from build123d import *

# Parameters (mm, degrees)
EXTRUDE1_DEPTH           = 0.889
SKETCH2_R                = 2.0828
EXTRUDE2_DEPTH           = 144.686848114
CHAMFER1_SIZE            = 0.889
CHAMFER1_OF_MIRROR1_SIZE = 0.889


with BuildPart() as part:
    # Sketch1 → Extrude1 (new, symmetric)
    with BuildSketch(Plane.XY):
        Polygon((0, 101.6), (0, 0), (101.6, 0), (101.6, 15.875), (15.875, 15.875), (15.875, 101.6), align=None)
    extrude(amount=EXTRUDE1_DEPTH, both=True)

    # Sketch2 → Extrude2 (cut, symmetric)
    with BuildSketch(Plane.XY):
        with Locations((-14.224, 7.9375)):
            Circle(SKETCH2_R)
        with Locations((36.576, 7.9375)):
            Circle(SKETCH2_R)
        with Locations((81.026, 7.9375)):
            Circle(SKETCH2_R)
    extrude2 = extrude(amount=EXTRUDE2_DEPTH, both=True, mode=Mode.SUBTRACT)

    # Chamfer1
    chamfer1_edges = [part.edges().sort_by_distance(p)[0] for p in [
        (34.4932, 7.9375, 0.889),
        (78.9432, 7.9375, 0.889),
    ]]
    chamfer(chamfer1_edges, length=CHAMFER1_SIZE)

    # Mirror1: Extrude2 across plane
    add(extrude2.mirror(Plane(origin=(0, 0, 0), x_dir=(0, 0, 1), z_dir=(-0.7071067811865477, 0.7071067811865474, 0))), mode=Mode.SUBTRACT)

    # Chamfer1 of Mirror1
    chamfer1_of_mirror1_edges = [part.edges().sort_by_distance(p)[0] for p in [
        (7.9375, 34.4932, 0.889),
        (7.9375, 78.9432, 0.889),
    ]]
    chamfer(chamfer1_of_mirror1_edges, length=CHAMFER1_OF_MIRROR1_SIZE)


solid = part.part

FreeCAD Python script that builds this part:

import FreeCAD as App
import Part
import Sketcher

V = App.Vector
Q = App.Units.Quantity


def edges_at(feature, points):
    """Names of the edges that pass closest to the given points."""
    edges = feature.Shape.Edges
    near = lambda p: min(range(len(edges)), key=lambda i: edges[i].distToShape(Part.Vertex(*p))[0])
    return sorted({f"Edge{near(p) + 1}" for p in points})

doc = App.newDocument("Part")
body = doc.addObject("PartDesign::Body", "Body")

# Sketch on XY plane
sketch1 = body.newObject("Sketcher::SketchObject", "Sketch")
sketch1.AttachmentSupport = (doc.getObject("XY_Plane"), [""])
sketch1.MapMode = "FlatFace"
sketch1.addGeometry(Part.LineSegment(V(0, 102, 0), V(0, 0, 0)), False)
sketch1.addGeometry(Part.LineSegment(V(0, 0, 0), V(102, 0, 0)), False)
sketch1.addGeometry(Part.LineSegment(V(102, 0, 0), V(102, 16, 0)), False)
sketch1.addGeometry(Part.LineSegment(V(102, 16, 0), V(16, 16, 0)), False)
sketch1.addGeometry(Part.LineSegment(V(16, 16, 0), V(16, 102, 0)), False)
sketch1.addGeometry(Part.LineSegment(V(16, 102, 0), V(0, 102, 0)), False)
sketch1.addConstraint(Sketcher.Constraint("Coincident", 0, 2, 1, 1))
sketch1.addConstraint(Sketcher.Constraint("Coincident", 1, 2, 2, 1))
sketch1.addConstraint(Sketcher.Constraint("Coincident", 2, 2, 3, 1))
sketch1.addConstraint(Sketcher.Constraint("Coincident", 3, 2, 4, 1))
sketch1.addConstraint(Sketcher.Constraint("Coincident", 4, 2, 5, 1))
sketch1.addConstraint(Sketcher.Constraint("Coincident", 5, 2, 0, 1))
sketch1.addConstraint(Sketcher.Constraint("Vertical", 0))
sketch1.addConstraint(Sketcher.Constraint("Horizontal", 1))
sketch1.addConstraint(Sketcher.Constraint("Vertical", 2))
sketch1.addConstraint(Sketcher.Constraint("Horizontal", 3))
sketch1.addConstraint(Sketcher.Constraint("Vertical", 4))
sketch1.addConstraint(Sketcher.Constraint("Horizontal", 5))
sketch1.addConstraint(Sketcher.Constraint("Coincident", 0, 2, -1, 1))
sketch1.addConstraint(Sketcher.Constraint("Equal", 1, 0))
sketch1.addConstraint(Sketcher.Constraint("Equal", 5, 2))
sketch1.addConstraint(Sketcher.Constraint("DistanceX", 1, 1, 1, 2, Q("4 in")))
sketch1.addConstraint(Sketcher.Constraint("DistanceX", 3, 2, 3, 1, Q("3.375 in")))
pad1 = body.newObject("PartDesign::Pad", "Pad")
pad1.Profile = sketch1
pad1.Length = Q("0.07 in")
pad1.Midplane = True

# Sketch on XY plane
sketch2 = body.newObject("Sketcher::SketchObject", "Sketch001")
sketch2.AttachmentSupport = (doc.getObject("XY_Plane"), [""])
sketch2.MapMode = "FlatFace"
sketch2.addGeometry(Part.Circle(V(-14.2, 7.9, 0), V(0, 0, 1), 2.1), False)
sketch2.addGeometry(Part.Circle(V(36.6, 7.9, 0), V(0, 0, 1), 2.1), False)
sketch2.addGeometry(Part.Circle(V(81, 7.9, 0), V(0, 0, 1), 2.1), False)
sketch2.addConstraint(Sketcher.Constraint("Equal", 0, 1))
sketch2.addConstraint(Sketcher.Constraint("Equal", 1, 2))
sketch2.addConstraint(Sketcher.Constraint("Horizontal", 0, 3, 1, 3))
sketch2.addConstraint(Sketcher.Constraint("Horizontal", 1, 3, 2, 3))
sketch2.addConstraint(Sketcher.Constraint("Diameter", 0, Q("0.164 in")))
sketch2.addConstraint(Sketcher.Constraint("DistanceX", 0, 3, 1, 3, Q("2 in")))
sketch2.addConstraint(Sketcher.Constraint("DistanceX", 0, 3, -1, 1, Q("0.56 in")))
sketch2.addConstraint(Sketcher.Constraint("DistanceX", -1, 1, 2, 3, Q("3.19 in")))
sketch2.addConstraint(Sketcher.Constraint("DistanceY", -1, 1, 0, 3, Q("0.3125 in")))
pocket1 = body.newObject("PartDesign::Pocket", "Pocket")
pocket1.Profile = sketch2
pocket1.Length = 289.373696
pocket1.Midplane = True
doc.recompute()

chamfer = body.newObject("PartDesign::Chamfer", "Chamfer")
chamfer.Base = (pocket1, edges_at(pocket1, [(34.493, 7.938, 0.889), (78.943, 7.938, 0.889)]))
chamfer.Size = Q("0.035 in")
doc.recompute()

datumplane = body.newObject("PartDesign::Plane", "DatumPlane")
datumplane.Placement = App.Placement(V(0, 0, 0), App.Rotation(V(0.707106781, 0.707106781, 0), V(0, 0, -1), V(-0.707106781, 0.707106781, 0), "ZXY"))
mirrored = body.newObject("PartDesign::Mirrored", "Mirrored")
mirrored.Originals = [pocket1]
mirrored.MirrorPlane = (datumplane, [""])
body.Tip = mirrored
doc.recompute()

chamfer2 = body.newObject("PartDesign::Chamfer", "Chamfer001")
chamfer2.Base = (mirrored, edges_at(mirrored, [(7.938, 34.493, 0.889), (7.938, 78.943, 0.889)]))
chamfer2.Size = Q("0.035 in")

doc.recompute()
